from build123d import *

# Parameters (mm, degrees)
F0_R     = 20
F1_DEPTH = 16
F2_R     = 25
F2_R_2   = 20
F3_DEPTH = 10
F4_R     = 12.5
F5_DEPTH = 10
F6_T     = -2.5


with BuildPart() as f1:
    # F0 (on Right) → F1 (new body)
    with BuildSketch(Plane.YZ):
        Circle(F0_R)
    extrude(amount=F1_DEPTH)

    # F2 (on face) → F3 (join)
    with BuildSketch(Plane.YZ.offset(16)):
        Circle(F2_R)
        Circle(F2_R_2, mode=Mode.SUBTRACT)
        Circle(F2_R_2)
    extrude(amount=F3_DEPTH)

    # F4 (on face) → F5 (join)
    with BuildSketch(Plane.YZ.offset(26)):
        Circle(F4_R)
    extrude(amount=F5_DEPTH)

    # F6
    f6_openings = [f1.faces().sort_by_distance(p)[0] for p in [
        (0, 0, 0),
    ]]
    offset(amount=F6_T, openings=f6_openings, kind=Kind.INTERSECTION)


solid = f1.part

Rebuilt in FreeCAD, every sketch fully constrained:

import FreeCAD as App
import Part
import Sketcher

V = App.Vector
Q = App.Units.Quantity


def faces_at(feature, points):
    """Names of the faces that lie closest to the given points."""
    faces = feature.Shape.Faces
    near = lambda p: min(range(len(faces)), key=lambda i: faces[i].distToShape(Part.Vertex(*p))[0])
    return sorted({f"Face{near(p) + 1}" for p in points})

doc = App.newDocument("Part")
body = doc.addObject("PartDesign::Body", "Body")

# Sketch on YZ plane
sketch1 = body.newObject("Sketcher::SketchObject", "Sketch")
sketch1.AttachmentSupport = (doc.getObject("YZ_Plane"), [""])
sketch1.MapMode = "FlatFace"
sketch1.addGeometry(Part.Circle(V(0, 0, 0), V(0, 0, 1), 20), False)
sketch1.addConstraint([
    Sketcher.Constraint("Coincident", 0, 3, -1, 1),
    Sketcher.Constraint("Diameter", 0, Q("40 mm")),
])
pad1 = body.newObject("PartDesign::Pad", "Pad")
pad1.Profile = sketch1
pad1.Length = 16

# Sketch on YZ plane
sketch2 = body.newObject("Sketcher::SketchObject", "Sketch001")
sketch2.AttachmentSupport = (doc.getObject("YZ_Plane"), [""])
sketch2.MapMode = "FlatFace"
sketch2.AttachmentOffset = App.Placement(V(0, 0, 16), App.Rotation())
sketch2.addGeometry(Part.Circle(V(0, 0, 0), V(0, 0, 1), 25), False)
sketch2.addConstraint([
    Sketcher.Constraint("Coincident", 0, 3, -1, 1),
    Sketcher.Constraint("Diameter", 0, Q("50 mm")),
])
pad2 = body.newObject("PartDesign::Pad", "Pad001")
pad2.Profile = sketch2
pad2.Length = 10

# Sketch on YZ plane
sketch3 = body.newObject("Sketcher::SketchObject", "Sketch002")
sketch3.AttachmentSupport = (doc.getObject("YZ_Plane"), [""])
sketch3.MapMode = "FlatFace"
sketch3.AttachmentOffset = App.Placement(V(0, 0, 26), App.Rotation())
sketch3.addGeometry(Part.Circle(V(0, 0, 0), V(0, 0, 1), 12.5), False)
sketch3.addConstraint([
    Sketcher.Constraint("Coincident", 0, 3, -1, 1),
    Sketcher.Constraint("Diameter", 0, Q("25 mm")),
])
pad3 = body.newObject("PartDesign::Pad", "Pad002")
pad3.Profile = sketch3
pad3.Length = 10
doc.recompute()

thickness = body.newObject("PartDesign::Thickness", "Thickness")
thickness.Base = (pad3, faces_at(pad3, [(0, 0, 0)]))
thickness.Value = 2.5
thickness.Reversed = True
thickness.Join = "Intersection"

doc.recompute()
